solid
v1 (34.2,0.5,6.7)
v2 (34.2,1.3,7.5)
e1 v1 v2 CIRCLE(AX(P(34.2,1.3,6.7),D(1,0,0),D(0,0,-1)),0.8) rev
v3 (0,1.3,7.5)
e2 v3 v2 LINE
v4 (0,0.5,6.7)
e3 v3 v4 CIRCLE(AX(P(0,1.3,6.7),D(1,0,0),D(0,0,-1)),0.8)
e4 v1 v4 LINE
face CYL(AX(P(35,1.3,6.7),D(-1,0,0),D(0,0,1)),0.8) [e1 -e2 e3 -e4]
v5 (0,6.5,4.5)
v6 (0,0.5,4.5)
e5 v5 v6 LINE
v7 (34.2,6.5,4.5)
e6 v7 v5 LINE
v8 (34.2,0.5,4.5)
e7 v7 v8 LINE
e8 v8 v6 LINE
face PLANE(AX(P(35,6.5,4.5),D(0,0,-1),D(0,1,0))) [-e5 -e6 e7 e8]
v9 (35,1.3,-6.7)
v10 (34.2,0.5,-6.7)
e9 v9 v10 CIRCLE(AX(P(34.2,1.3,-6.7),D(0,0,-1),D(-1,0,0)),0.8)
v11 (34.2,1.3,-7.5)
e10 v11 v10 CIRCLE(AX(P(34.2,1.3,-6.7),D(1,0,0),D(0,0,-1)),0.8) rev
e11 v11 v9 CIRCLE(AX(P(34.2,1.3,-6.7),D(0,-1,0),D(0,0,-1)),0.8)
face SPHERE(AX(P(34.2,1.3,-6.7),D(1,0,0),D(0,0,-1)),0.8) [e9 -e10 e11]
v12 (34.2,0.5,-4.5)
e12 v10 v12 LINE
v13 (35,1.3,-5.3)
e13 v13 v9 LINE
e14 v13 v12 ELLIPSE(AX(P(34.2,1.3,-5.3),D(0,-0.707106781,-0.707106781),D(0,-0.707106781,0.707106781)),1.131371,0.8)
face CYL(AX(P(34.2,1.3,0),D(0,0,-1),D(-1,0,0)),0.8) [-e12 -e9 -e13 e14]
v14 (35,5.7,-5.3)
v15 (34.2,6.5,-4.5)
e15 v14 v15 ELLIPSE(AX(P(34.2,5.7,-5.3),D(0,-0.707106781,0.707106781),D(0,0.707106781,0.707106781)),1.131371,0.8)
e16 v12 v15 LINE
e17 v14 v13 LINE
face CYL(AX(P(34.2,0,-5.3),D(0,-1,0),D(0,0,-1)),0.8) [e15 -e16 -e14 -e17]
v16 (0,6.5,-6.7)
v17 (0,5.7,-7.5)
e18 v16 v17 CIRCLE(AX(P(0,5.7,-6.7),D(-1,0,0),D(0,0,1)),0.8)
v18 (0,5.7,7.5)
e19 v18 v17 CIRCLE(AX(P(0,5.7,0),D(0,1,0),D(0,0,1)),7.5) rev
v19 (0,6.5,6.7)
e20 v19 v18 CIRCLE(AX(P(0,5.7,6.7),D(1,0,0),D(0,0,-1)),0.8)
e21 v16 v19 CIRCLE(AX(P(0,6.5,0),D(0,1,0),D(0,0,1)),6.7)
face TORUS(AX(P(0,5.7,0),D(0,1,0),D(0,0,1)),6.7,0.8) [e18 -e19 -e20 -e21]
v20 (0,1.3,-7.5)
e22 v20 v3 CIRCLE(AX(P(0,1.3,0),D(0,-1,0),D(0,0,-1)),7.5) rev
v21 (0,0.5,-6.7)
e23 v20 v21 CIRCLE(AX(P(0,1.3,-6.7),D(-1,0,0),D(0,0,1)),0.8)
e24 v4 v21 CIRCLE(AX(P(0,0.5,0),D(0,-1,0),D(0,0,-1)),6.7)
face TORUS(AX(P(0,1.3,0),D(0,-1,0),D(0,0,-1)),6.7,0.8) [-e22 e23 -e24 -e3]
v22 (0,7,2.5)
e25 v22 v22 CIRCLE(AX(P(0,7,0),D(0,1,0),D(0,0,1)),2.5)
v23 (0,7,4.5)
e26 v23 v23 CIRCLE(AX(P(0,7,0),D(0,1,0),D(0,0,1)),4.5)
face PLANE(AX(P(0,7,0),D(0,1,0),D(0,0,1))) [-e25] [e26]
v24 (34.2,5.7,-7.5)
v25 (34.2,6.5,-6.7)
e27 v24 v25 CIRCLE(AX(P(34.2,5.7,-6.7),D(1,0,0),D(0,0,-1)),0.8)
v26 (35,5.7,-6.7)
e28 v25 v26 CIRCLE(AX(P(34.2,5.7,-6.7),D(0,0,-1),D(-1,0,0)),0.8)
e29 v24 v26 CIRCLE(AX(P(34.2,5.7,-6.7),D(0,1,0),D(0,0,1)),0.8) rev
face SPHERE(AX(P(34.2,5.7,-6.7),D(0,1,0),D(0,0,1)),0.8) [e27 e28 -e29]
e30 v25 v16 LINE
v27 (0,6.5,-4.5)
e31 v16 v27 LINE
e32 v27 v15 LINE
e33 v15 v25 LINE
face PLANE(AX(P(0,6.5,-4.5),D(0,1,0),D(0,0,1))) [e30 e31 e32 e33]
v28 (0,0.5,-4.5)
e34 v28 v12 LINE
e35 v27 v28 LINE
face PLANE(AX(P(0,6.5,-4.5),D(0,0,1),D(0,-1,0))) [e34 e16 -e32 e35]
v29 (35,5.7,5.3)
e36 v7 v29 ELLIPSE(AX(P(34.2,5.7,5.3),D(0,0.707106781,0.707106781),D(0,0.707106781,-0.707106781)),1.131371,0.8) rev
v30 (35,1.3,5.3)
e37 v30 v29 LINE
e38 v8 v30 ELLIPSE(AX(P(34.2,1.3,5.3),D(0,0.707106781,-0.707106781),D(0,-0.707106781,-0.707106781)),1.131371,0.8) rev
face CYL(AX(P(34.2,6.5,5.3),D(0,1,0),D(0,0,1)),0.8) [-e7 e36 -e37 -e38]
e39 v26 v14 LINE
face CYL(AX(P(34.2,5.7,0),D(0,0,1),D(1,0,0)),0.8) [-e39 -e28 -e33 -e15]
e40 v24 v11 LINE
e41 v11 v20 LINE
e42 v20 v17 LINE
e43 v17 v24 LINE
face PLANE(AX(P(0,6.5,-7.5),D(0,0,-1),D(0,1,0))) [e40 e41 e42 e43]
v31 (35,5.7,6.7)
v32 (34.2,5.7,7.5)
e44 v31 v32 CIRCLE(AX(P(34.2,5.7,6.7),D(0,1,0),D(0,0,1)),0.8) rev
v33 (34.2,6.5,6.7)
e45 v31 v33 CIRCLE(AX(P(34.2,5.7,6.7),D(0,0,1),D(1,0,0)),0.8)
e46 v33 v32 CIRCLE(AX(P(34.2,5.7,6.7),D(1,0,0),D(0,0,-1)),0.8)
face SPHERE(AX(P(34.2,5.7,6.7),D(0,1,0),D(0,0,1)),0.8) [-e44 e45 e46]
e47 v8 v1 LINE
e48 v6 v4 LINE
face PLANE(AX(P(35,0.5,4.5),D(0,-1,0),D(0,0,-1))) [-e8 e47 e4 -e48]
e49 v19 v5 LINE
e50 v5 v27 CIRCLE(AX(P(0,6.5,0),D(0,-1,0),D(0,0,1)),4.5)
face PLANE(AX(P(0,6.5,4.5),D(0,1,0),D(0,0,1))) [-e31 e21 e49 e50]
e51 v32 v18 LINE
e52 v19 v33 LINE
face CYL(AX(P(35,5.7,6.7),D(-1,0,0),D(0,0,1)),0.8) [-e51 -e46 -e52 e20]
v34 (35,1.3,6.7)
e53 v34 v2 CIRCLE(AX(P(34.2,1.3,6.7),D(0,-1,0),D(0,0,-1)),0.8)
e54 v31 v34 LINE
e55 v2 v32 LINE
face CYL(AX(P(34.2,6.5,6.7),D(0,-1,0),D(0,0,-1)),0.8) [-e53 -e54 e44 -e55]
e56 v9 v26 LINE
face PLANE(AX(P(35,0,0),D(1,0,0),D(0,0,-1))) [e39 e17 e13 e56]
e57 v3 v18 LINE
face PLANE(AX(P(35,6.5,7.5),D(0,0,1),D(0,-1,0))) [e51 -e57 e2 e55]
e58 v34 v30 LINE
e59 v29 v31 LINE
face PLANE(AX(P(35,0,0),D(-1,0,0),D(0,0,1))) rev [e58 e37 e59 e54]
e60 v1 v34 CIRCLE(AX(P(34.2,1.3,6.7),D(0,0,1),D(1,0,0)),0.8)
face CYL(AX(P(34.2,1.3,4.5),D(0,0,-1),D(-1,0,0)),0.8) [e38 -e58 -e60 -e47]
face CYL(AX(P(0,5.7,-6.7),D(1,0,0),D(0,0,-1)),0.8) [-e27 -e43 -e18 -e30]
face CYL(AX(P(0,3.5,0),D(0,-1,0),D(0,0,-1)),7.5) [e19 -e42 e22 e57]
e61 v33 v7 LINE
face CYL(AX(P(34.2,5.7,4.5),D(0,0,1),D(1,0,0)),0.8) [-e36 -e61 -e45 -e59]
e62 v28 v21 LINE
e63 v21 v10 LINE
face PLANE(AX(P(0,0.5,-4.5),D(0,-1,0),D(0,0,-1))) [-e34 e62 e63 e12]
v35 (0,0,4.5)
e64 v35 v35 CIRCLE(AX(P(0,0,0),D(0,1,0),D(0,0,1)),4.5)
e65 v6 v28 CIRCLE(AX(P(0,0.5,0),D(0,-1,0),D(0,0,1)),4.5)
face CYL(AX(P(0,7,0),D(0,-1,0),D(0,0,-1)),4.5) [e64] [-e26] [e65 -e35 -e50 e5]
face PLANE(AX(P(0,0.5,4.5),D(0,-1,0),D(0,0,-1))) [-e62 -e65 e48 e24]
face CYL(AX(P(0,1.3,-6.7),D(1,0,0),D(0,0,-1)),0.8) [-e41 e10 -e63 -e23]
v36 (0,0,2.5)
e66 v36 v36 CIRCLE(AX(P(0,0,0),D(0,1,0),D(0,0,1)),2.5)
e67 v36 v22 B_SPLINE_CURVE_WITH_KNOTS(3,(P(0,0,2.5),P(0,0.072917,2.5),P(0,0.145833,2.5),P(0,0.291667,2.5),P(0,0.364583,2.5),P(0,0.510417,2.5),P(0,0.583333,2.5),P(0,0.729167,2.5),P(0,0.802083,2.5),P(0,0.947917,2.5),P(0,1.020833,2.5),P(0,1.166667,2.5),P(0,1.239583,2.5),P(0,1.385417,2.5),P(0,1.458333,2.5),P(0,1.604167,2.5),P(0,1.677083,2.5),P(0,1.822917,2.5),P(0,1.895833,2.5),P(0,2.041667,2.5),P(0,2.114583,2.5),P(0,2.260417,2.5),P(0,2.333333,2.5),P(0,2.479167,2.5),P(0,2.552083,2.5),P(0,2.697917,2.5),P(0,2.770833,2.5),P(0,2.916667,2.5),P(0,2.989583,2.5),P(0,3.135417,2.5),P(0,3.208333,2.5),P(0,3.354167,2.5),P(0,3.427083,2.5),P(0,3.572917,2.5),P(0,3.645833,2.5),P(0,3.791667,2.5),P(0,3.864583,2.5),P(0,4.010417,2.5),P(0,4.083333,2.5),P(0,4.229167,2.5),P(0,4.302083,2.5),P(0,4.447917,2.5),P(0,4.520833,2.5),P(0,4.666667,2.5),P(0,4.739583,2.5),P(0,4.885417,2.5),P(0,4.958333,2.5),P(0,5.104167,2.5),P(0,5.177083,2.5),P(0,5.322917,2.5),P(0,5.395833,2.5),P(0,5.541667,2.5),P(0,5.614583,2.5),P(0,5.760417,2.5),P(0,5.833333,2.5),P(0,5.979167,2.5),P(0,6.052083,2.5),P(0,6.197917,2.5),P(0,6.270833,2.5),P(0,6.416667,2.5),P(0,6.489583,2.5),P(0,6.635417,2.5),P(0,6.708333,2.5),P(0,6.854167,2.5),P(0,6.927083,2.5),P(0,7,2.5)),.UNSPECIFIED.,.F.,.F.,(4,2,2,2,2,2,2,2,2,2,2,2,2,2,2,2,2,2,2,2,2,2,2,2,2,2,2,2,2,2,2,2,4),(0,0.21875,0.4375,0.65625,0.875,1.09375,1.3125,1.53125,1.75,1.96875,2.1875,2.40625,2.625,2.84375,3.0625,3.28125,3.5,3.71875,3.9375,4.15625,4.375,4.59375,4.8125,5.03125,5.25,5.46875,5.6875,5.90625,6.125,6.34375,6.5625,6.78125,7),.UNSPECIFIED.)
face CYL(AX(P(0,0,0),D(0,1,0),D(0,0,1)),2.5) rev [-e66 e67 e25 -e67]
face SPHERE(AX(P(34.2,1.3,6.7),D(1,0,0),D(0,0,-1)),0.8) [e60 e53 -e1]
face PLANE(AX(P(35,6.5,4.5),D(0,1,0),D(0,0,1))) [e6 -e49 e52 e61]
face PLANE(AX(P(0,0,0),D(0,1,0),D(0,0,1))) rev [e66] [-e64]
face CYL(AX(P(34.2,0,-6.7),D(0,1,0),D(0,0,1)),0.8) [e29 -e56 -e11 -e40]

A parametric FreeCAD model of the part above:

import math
import FreeCAD as App
import Part
import Sketcher

V = App.Vector


def edges_at(feature, points):
    """Names of the edges that pass closest to the given points."""
    edges = feature.Shape.Edges
    near = lambda p: min(range(len(edges)), key=lambda i: edges[i].distToShape(Part.Vertex(*p))[0])
    return sorted({f"Edge{near(p) + 1}" for p in points})

doc = App.newDocument("Part")
body = doc.addObject("PartDesign::Body", "Body")

# Sketch on XZ plane
sketch1 = body.newObject("Sketcher::SketchObject", "Sketch")
sketch1.AttachmentSupport = (doc.getObject("XZ_Plane"), [""])
sketch1.MapMode = "FlatFace"
sketch1.addGeometry(Part.Circle(V(0, 0, 0), V(0, 0, 1), 4.5), False)
sketch1.addConstraint([
    Sketcher.Constraint("Coincident", 0, 3, -1, 1),
    Sketcher.Constraint("Diameter", 0, 9.0),
])
pad1 = body.newObject("PartDesign::Pad", "Pad")
pad1.Profile = sketch1
pad1.Length = 7
pad1.Reversed = True

# Sketch on XZ plane
sketch2 = body.newObject("Sketcher::SketchObject", "Sketch001")
sketch2.AttachmentSupport = (doc.getObject("XZ_Plane"), [""])
sketch2.MapMode = "FlatFace"
sketch2.AttachmentOffset = App.Placement(V(0, 0, -7), App.Rotation())
sketch2.addGeometry(Part.Circle(V(0, 0, 0), V(0, 0, 1), 2.5), False)
sketch2.addConstraint([
    Sketcher.Constraint("Coincident", 0, 3, -1, 1),
    Sketcher.Constraint("Diameter", 0, 5.0),
])
pocket1 = body.newObject("PartDesign::Pocket", "Pocket")
pocket1.Profile = sketch2
pocket1.Type = "ThroughAll"
pocket1.Reversed = True

# Sketch on YZ plane
sketch3 = body.newObject("Sketcher::SketchObject", "Sketch002")
sketch3.AttachmentSupport = (doc.getObject("YZ_Plane"), [""])
sketch3.MapMode = "FlatFace"
sketch3.AttachmentOffset = App.Placement(V(0, 0, 35), App.Rotation())
sketch3.addGeometry([
    Part.LineSegment(V(6.5, -4.5, 0), V(0.5, -4.5, 0)),
    Part.LineSegment(V(0.5, -4.5, 0), V(0.5, -7.5, 0)),
    Part.LineSegment(V(0.5, -7.5, 0), V(6.5, -7.5, 0)),
    Part.LineSegment(V(6.5, -7.5, 0), V(6.5, -4.5, 0)),
], False)
sketch3.addConstraint([
    Sketcher.Constraint("Coincident", 0, 2, 1, 1),
    Sketcher.Constraint("Coincident", 1, 2, 2, 1),
    Sketcher.Constraint("Coincident", 2, 2, 3, 1),
    Sketcher.Constraint("Coincident", 3, 2, 0, 1),
    Sketcher.Constraint("Horizontal", 0),
    Sketcher.Constraint("Vertical", 1),
    Sketcher.Constraint("Horizontal", 2),
    Sketcher.Constraint("Vertical", 3),
    Sketcher.Constraint("DistanceX", 0, 2, 0, 1, 6.0),
    Sketcher.Constraint("DistanceY", 1, 2, 1, 1, 3.0),
    Sketcher.Constraint("DistanceX", -1, 1, 0, 2, 0.5),
    Sketcher.Constraint("DistanceY", 0, 2, -1, 1, 4.5),
])

# Sketch on XZ plane
sketch4 = body.newObject("Sketcher::SketchObject", "Sketch003")
sketch4.AttachmentSupport = (doc.getObject("XZ_Plane"), [""])
sketch4.MapMode = "FlatFace"
sketch4.AttachmentOffset = App.Placement(V(0, 0, -3.5), App.Rotation())
sketch4.addGeometry([
    Part.LineSegment(V(35, -6, 0), V(0, -6, 0)),
    Part.ArcOfCircle(Part.Circle(V(0, 0, 0), V(0, 0, 1), 6), math.radians(90), math.radians(270)),
    Part.LineSegment(V(0, 6, 0), V(35, 6, 0)),
], False)
sketch4.addConstraint([
    Sketcher.Constraint("Tangent", 0, 2, 1, 2),
    Sketcher.Constraint("Tangent", 1, 1, 2, 1),
    Sketcher.Constraint("Horizontal", 0),
    Sketcher.Constraint("Horizontal", 2),
    Sketcher.Constraint("Coincident", 1, 3, -1, 1),
    Sketcher.Constraint("Vertical", 0, 1, 2, 2),
    Sketcher.Constraint("Radius", 1, 6.0),
    Sketcher.Constraint("DistanceX", 0, 2, 0, 1, 35.0),
])
doc.recompute()

additivepipe = body.newObject("PartDesign::AdditivePipe", "AdditivePipe")
additivepipe.Profile = sketch3
additivepipe.Spine = (sketch4, ["Edge1", "Edge2", "Edge3"])
doc.recompute()

fillet = body.newObject("PartDesign::Fillet", "Fillet")
fillet.Base = (additivepipe, edges_at(additivepipe, [
    (35, 3.5, -7.5),
    (35, 6.5, -6),
    (35, 3.5, -4.5),
    (35, 0.5, -6),
    (35, 3.5, 4.5),
    (17.5, 0.5, 7.5),
    (35, 0.5, 6),
    (17.5, 6.5, 7.5),
    (35, 3.5, 7.5),
    (35, 6.5, 6),
    (-7.5, 0.5, 0),
    (-7.5, 6.5, 0),
    (17.5, 0.5, -7.5),
    (17.5, 6.5, -7.5),
]))
fillet.Radius = 0.8

doc.recompute()
